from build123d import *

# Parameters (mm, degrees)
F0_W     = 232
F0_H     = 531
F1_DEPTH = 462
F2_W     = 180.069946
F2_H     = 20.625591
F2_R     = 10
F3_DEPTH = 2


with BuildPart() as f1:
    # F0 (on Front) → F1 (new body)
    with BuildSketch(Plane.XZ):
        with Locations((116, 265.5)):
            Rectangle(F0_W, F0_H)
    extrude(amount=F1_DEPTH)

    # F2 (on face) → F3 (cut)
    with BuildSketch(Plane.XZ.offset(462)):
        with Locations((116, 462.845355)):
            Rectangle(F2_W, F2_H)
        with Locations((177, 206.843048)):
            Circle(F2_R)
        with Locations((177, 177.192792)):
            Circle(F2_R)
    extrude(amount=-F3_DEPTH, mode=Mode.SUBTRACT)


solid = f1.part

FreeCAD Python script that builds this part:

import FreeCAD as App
import Part
import Sketcher

doc = App.newDocument("Part")
body = doc.addObject("PartDesign::Body", "Body")

sketch1 = body.newObject("Sketcher::SketchObject", "Sketch")
sketch1.AttachmentSupport = (doc.getObject("XZ_Plane"), [""])
sketch1.MapMode = "FlatFace"
sketch1.addGeometry(Part.LineSegment(App.Vector(0, 531, 0), App.Vector(0, 0, 0)), False)
sketch1.addGeometry(Part.LineSegment(App.Vector(0, 0, 0), App.Vector(232, 0, 0)), False)
sketch1.addGeometry(Part.LineSegment(App.Vector(232, 0, 0), App.Vector(232, 531, 0)), False)
sketch1.addGeometry(Part.LineSegment(App.Vector(232, 531, 0), App.Vector(0, 531, 0)), False)
sketch1.addConstraint(Sketcher.Constraint("Coincident", 0, 2, 1, 1))
sketch1.addConstraint(Sketcher.Constraint("Coincident", 1, 2, 2, 1))
sketch1.addConstraint(Sketcher.Constraint("Coincident", 2, 2, 3, 1))
sketch1.addConstraint(Sketcher.Constraint("Coincident", 3, 2, 0, 1))
sketch1.addConstraint(Sketcher.Constraint("Vertical", 0))
sketch1.addConstraint(Sketcher.Constraint("Horizontal", 1))
sketch1.addConstraint(Sketcher.Constraint("Vertical", 2))
sketch1.addConstraint(Sketcher.Constraint("Horizontal", 3))
sketch1.addConstraint(Sketcher.Constraint("Coincident", 0, 2, -1, 1))
sketch1.addConstraint(Sketcher.Constraint("DistanceX", 1, 1, 1, 2, 232.0))
sketch1.addConstraint(Sketcher.Constraint("DistanceY", 0, 2, 0, 1, 531.0))
pad1 = body.newObject("PartDesign::Pad", "Pad")
pad1.Profile = sketch1
pad1.Length = 462

sketch2 = body.newObject("Sketcher::SketchObject", "Sketch001")
sketch2.AttachmentSupport = (doc.getObject("XZ_Plane"), [""])
sketch2.MapMode = "FlatFace"
sketch2.AttachmentOffset = App.Placement(App.Vector(0, 0, 462), App.Rotation())
sketch2.addGeometry(Part.LineSegment(App.Vector(25.965027, 473.15815, 0), App.Vector(25.965027, 452.532559, 0)), False)
sketch2.addGeometry(Part.LineSegment(App.Vector(25.965027, 452.532559, 0), App.Vector(206.034973, 452.532559, 0)), False)
sketch2.addGeometry(Part.LineSegment(App.Vector(206.034973, 452.532559, 0), App.Vector(206.034973, 473.15815, 0)), False)
sketch2.addGeometry(Part.LineSegment(App.Vector(206.034973, 473.15815, 0), App.Vector(25.965027, 473.15815, 0)), False)
sketch2.addGeometry(Part.Circle(App.Vector(177, 206.843048, 0), App.Vector(0, 0, 1), 10), False)
sketch2.addGeometry(Part.Circle(App.Vector(177, 177.192792, 0), App.Vector(0, 0, 1), 10), False)
sketch2.addConstraint(Sketcher.Constraint("Coincident", 0, 2, 1, 1))
sketch2.addConstraint(Sketcher.Constraint("Coincident", 1, 2, 2, 1))
sketch2.addConstraint(Sketcher.Constraint("Coincident", 2, 2, 3, 1))
sketch2.addConstraint(Sketcher.Constraint("Coincident", 3, 2, 0, 1))
sketch2.addConstraint(Sketcher.Constraint("Vertical", 0))
sketch2.addConstraint(Sketcher.Constraint("Horizontal", 1))
sketch2.addConstraint(Sketcher.Constraint("Vertical", 2))
sketch2.addConstraint(Sketcher.Constraint("Horizontal", 3))
sketch2.addConstraint(Sketcher.Constraint("Equal", 4, 5))
sketch2.addConstraint(Sketcher.Constraint("Vertical", 4, 3, 5, 3))
sketch2.addConstraint(Sketcher.Constraint("Diameter", 4, 20.0))
sketch2.addConstraint(Sketcher.Constraint("DistanceX", -1, 1, 4, 3, 177.0))
sketch2.addConstraint(Sketcher.Constraint("DistanceY", 0, 2, 0, 1, 20.625591))
sketch2.addConstraint(Sketcher.Constraint("DistanceX", 1, 1, 1, 2, 180.069946))
sketch2.addConstraint(Sketcher.Constraint("DistanceY", -1, 1, 4, 3, 206.843048))
sketch2.addConstraint(Sketcher.Constraint("DistanceY", -1, 1, 5, 3, 177.192792))
sketch2.addConstraint(Sketcher.Constraint("DistanceY", -1, 1, 0, 2, 452.532559))
sketch2.addConstraint(Sketcher.Constraint("DistanceX", -1, 1, 0, 2, 25.965027))
pocket1 = body.newObject("PartDesign::Pocket", "Pocket")
pocket1.Profile = sketch2
pocket1.Length = 2

doc.recompute()
